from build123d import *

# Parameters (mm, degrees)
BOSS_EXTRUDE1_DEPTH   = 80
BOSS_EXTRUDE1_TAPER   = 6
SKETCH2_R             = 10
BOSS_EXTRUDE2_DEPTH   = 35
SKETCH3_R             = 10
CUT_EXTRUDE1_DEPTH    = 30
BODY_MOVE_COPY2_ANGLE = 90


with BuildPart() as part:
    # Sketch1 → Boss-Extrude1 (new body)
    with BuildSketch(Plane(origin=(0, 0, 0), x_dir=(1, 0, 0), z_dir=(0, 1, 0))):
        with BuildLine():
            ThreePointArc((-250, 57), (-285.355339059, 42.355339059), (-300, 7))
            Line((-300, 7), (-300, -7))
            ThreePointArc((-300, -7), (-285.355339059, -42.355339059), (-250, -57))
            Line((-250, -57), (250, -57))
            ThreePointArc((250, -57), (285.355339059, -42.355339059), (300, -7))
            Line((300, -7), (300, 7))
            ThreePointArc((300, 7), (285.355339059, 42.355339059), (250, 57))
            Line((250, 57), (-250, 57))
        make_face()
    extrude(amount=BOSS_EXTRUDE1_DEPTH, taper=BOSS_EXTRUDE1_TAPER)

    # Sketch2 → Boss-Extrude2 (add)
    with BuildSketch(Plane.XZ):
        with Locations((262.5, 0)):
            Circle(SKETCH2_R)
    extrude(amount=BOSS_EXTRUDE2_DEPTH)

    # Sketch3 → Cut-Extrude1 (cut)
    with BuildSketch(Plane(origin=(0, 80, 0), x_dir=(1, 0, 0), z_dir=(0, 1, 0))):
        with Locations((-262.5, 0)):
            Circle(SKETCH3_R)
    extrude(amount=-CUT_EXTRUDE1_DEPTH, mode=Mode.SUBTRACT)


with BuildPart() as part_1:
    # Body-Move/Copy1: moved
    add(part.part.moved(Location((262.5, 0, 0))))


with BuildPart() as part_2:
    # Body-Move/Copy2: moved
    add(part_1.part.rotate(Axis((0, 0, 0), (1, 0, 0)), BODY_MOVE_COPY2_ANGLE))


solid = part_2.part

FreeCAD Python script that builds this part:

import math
import FreeCAD as App
import Part
import Sketcher
from FreeCAD import Vector

doc = App.newDocument("Part")
body = doc.addObject("PartDesign::Body", "Body")

sketch1 = doc.addObject("Sketcher::SketchObject", "Sketch")
body.addObject(sketch1)
sketch1.AttachmentSupport = (doc.XZ_Plane, [""])
sketch1.MapMode = "FlatFace"
sketch1.addGeometry([
    Part.ArcOfCircle(Part.Circle(Vector(-250, -7, 0), Vector(0, 0, 1), 50), math.radians(-180), math.radians(-90)),
    Part.LineSegment(Vector(-300, -7, 0), Vector(-300, 7, 0)),
    Part.ArcOfCircle(Part.Circle(Vector(-250, 7, 0), Vector(0, 0, 1), 50), math.radians(90), math.radians(180)),
    Part.LineSegment(Vector(-250, 57, 0), Vector(250, 57, 0)),
    Part.ArcOfCircle(Part.Circle(Vector(250, 7, 0), Vector(0, 0, 1), 50), math.radians(0), math.radians(90)),
    Part.LineSegment(Vector(300, 7, 0), Vector(300, -7, 0)),
    Part.ArcOfCircle(Part.Circle(Vector(250, -7, 0), Vector(0, 0, 1), 50), math.radians(-90), math.radians(0)),
    Part.LineSegment(Vector(250, -57, 0), Vector(-250, -57, 0)),
], False)
sketch1.addConstraint([
    Sketcher.Constraint("Tangent", 0, 1, 1, 1),
    Sketcher.Constraint("Tangent", 1, 2, 2, 2),
    Sketcher.Constraint("Tangent", 2, 1, 3, 1),
    Sketcher.Constraint("Tangent", 3, 2, 4, 2),
    Sketcher.Constraint("Tangent", 4, 1, 5, 1),
    Sketcher.Constraint("Tangent", 5, 2, 6, 2),
    Sketcher.Constraint("Tangent", 6, 1, 7, 1),
    Sketcher.Constraint("Tangent", 7, 2, 0, 2),
    Sketcher.Constraint("Vertical", 1),
    Sketcher.Constraint("Horizontal", 3),
    Sketcher.Constraint("Vertical", 5),
    Sketcher.Constraint("Horizontal", 7),
    Sketcher.Constraint("Equal", 0, 2),
    Sketcher.Constraint("Equal", 2, 4),
    Sketcher.Constraint("Equal", 4, 6),
    Sketcher.Constraint("Symmetric", 0, 3, 4, 3, -1, 1),
    Sketcher.Constraint("Radius", 0, 50.0),
    Sketcher.Constraint("DistanceX", 3, 1, 3, 2, 500.0),
    Sketcher.Constraint("DistanceY", 1, 1, 1, 2, 14.0),
])
pad1 = doc.addObject("PartDesign::Pad", "Pad")
body.addObject(pad1)
pad1.Profile = sketch1
pad1.Length = 80
pad1.Reversed = True
pad1.TaperAngle = -6

sketch2 = doc.addObject("Sketcher::SketchObject", "Sketch001")
body.addObject(sketch2)
sketch2.AttachmentSupport = (doc.XZ_Plane, [""])
sketch2.MapMode = "FlatFace"
sketch2.addGeometry(Part.Circle(Vector(262.5, 0, 0), Vector(0, 0, 1), 10), False)
sketch2.addConstraint([
    Sketcher.Constraint("PointOnObject", 0, 3, -1),
    Sketcher.Constraint("Diameter", 0, 20.0),
    Sketcher.Constraint("DistanceX", -1, 1, 0, 3, 262.5),
])
pad2 = doc.addObject("PartDesign::Pad", "Pad001")
body.addObject(pad2)
pad2.Profile = sketch2
pad2.Length = 35

sketch3 = doc.addObject("Sketcher::SketchObject", "Sketch002")
body.addObject(sketch3)
sketch3.AttachmentSupport = (doc.XZ_Plane, [""])
sketch3.MapMode = "FlatFace"
sketch3.AttachmentOffset = App.Placement(Vector(0, 0, -80), App.Rotation())
sketch3.addGeometry(Part.Circle(Vector(-262.5, 0, 0), Vector(0, 0, 1), 10), False)
sketch3.addConstraint([
    Sketcher.Constraint("PointOnObject", 0, 3, -1),
    Sketcher.Constraint("Diameter", 0, 20.0),
    Sketcher.Constraint("DistanceX", 0, 3, -1, 1, 262.5),
])
pocket1 = doc.addObject("PartDesign::Pocket", "Pocket")
body.addObject(pocket1)
pocket1.Profile = sketch3
pocket1.Length = 30
pocket1.Reversed = True
body2 = doc.addObject("PartDesign::Body", "Body001")
doc.recompute()

body.Placement = App.Placement(Vector(262.5, 0, 0), App.Rotation(Vector(0, 0, 1), 0))
boolean = doc.addObject("PartDesign::Boolean", "Boolean")
body2.addObject(boolean)
boolean.Type = "Fuse"
boolean.addObjects([body])
body3 = doc.addObject("PartDesign::Body", "Body002")
doc.recompute()

body2.Placement = App.Placement(Vector(0, 0, 0), App.Rotation(Vector(1, 0, 0), 90))
boolean2 = doc.addObject("PartDesign::Boolean", "Boolean001")
body3.addObject(boolean2)
boolean2.Type = "Fuse"
boolean2.addObjects([body2])

doc.recompute()
